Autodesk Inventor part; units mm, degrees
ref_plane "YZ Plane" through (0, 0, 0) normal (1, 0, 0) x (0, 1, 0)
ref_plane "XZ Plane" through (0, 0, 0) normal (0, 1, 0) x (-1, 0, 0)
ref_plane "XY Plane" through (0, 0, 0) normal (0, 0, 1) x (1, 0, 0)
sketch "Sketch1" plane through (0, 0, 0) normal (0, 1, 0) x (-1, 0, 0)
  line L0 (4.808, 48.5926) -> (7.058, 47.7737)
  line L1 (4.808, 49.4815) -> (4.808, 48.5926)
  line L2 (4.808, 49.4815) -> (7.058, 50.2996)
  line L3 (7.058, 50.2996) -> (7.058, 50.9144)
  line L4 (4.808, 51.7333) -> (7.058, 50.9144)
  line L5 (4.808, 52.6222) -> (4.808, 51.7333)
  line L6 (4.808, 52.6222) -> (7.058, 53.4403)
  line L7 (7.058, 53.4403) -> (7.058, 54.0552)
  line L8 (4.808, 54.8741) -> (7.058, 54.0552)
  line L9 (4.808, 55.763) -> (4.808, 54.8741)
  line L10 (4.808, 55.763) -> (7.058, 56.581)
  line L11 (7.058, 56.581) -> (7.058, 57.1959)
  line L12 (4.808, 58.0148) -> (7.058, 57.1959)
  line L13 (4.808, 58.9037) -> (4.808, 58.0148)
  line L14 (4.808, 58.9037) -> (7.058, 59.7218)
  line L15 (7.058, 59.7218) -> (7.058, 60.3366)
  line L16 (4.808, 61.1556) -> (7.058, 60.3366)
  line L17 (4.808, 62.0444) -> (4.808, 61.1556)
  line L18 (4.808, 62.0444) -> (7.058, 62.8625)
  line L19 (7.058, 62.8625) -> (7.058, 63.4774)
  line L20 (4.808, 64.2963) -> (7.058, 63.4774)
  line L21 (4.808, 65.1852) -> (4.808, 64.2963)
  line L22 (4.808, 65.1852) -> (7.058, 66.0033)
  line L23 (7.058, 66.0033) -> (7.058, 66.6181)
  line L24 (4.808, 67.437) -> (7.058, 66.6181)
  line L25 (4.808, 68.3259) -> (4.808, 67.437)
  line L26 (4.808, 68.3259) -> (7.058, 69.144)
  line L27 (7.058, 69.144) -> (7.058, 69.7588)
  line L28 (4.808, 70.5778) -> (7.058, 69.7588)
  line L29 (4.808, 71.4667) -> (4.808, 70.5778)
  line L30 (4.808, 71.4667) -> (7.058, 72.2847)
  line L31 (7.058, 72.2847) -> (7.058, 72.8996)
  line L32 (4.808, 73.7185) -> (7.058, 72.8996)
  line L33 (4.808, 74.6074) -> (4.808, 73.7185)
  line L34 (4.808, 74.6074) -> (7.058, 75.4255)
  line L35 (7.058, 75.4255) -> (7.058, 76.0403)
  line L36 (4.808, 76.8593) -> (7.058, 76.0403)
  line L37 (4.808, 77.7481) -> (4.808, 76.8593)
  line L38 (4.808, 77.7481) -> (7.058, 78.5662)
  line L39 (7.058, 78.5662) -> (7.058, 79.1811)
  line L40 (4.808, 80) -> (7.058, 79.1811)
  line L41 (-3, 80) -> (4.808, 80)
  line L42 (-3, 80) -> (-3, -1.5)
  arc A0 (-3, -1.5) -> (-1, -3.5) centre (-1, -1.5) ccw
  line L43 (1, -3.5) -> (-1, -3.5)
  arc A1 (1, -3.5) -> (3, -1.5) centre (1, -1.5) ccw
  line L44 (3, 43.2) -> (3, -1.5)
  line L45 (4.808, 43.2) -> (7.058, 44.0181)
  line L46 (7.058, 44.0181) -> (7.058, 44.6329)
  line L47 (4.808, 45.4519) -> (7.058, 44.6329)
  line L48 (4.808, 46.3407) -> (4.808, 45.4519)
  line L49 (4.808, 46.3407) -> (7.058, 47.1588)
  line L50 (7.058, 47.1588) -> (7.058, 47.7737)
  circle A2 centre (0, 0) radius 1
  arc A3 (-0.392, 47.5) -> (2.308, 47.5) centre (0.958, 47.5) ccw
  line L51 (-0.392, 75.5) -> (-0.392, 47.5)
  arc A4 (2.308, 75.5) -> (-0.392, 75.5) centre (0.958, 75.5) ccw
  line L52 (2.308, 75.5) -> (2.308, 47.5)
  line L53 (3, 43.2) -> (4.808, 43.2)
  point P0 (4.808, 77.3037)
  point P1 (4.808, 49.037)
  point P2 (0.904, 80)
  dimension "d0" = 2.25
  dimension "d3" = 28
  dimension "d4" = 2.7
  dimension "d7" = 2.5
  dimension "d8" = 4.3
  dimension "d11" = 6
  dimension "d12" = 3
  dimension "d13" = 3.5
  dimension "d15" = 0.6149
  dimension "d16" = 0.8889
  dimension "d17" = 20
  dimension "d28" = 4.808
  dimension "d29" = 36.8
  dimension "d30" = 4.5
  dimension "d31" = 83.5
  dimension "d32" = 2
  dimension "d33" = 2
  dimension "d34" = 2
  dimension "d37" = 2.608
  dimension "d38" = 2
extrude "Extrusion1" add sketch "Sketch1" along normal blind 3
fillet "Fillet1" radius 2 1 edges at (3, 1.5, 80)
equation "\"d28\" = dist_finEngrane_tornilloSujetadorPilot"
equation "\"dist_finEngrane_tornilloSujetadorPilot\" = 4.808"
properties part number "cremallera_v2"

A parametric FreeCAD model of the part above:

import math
import FreeCAD as App
import Part
import Sketcher

V = App.Vector
Q = App.Units.Quantity


def edges_at(feature, points):
    """Names of the edges that pass closest to the given points."""
    edges = feature.Shape.Edges
    near = lambda p: min(range(len(edges)), key=lambda i: edges[i].distToShape(Part.Vertex(*p))[0])
    return sorted({f"Edge{near(p) + 1}" for p in points})

doc = App.newDocument("Part")
params = doc.addObject("Spreadsheet::Sheet", "Params")
for row, (alias, value) in enumerate([
    ("sketch1_diameter", "2 mm"),
    ("sketch1_radius", "2 mm"),
    ("sketch1_width", "2 mm"),
    ("sketch1_height", "28 mm"),
    ("sketch1_radius2", "1.35 mm"),
    ("pad1_length", "3 mm"),
    ("fillet_radius", "2 mm"),
], start=1):
    params.set(f"A{row}", alias)
    params.set(f"B{row}", "=" + value)
    params.setAlias(f"B{row}", alias)

body = doc.addObject("PartDesign::Body", "Body")

# Sketch on XZ plane
sketch1 = doc.addObject("Sketcher::SketchObject", "Sketch")
body.addObject(sketch1)
sketch1.AttachmentSupport = (doc.XZ_Plane, [""])
sketch1.MapMode = "FlatFace"
sketch1.addGeometry(Part.LineSegment(V(-7.1, 47.8, 0), V(-4.8, 48.6, 0)), False)
sketch1.addGeometry(Part.LineSegment(V(-4.8, 48.6, 0), V(-4.8, 49.5, 0)), False)
sketch1.addGeometry(Part.LineSegment(V(-4.8, 49.5, 0), V(-7.1, 50.3, 0)), False)
sketch1.addGeometry(Part.LineSegment(V(-7.1, 50.3, 0), V(-7.1, 50.9, 0)), False)
sketch1.addGeometry(Part.LineSegment(V(-7.1, 50.9, 0), V(-4.8, 51.7, 0)), False)
sketch1.addGeometry(Part.LineSegment(V(-4.8, 51.7, 0), V(-4.8, 52.6, 0)), False)
sketch1.addGeometry(Part.LineSegment(V(-4.8, 52.6, 0), V(-7.1, 53.4, 0)), False)
sketch1.addGeometry(Part.LineSegment(V(-7.1, 53.4, 0), V(-7.1, 54.1, 0)), False)
sketch1.addGeometry(Part.LineSegment(V(-7.1, 54.1, 0), V(-4.8, 54.9, 0)), False)
sketch1.addGeometry(Part.LineSegment(V(-4.8, 54.9, 0), V(-4.8, 55.8, 0)), False)
sketch1.addGeometry(Part.LineSegment(V(-4.8, 55.8, 0), V(-7.1, 56.6, 0)), False)
sketch1.addGeometry(Part.LineSegment(V(-7.1, 56.6, 0), V(-7.1, 57.2, 0)), False)
sketch1.addGeometry(Part.LineSegment(V(-7.1, 57.2, 0), V(-4.8, 58, 0)), False)
sketch1.addGeometry(Part.LineSegment(V(-4.8, 58, 0), V(-4.8, 58.9, 0)), False)
sketch1.addGeometry(Part.LineSegment(V(-4.8, 58.9, 0), V(-7.1, 59.7, 0)), False)
sketch1.addGeometry(Part.LineSegment(V(-7.1, 59.7, 0), V(-7.1, 60.3, 0)), False)
sketch1.addGeometry(Part.LineSegment(V(-7.1, 60.3, 0), V(-4.8, 61.2, 0)), False)
sketch1.addGeometry(Part.LineSegment(V(-4.8, 61.2, 0), V(-4.8, 62, 0)), False)
sketch1.addGeometry(Part.LineSegment(V(-4.8, 62, 0), V(-7.1, 62.9, 0)), False)
sketch1.addGeometry(Part.LineSegment(V(-7.1, 62.9, 0), V(-7.1, 63.5, 0)), False)
sketch1.addGeometry(Part.LineSegment(V(-7.1, 63.5, 0), V(-4.8, 64.3, 0)), False)
sketch1.addGeometry(Part.LineSegment(V(-4.8, 64.3, 0), V(-4.8, 65.2, 0)), False)
sketch1.addGeometry(Part.LineSegment(V(-4.8, 65.2, 0), V(-7.1, 66, 0)), False)
sketch1.addGeometry(Part.LineSegment(V(-7.1, 66, 0), V(-7.1, 66.6, 0)), False)
sketch1.addGeometry(Part.LineSegment(V(-7.1, 66.6, 0), V(-4.8, 67.4, 0)), False)
sketch1.addGeometry(Part.LineSegment(V(-4.8, 67.4, 0), V(-4.8, 68.3, 0)), False)
sketch1.addGeometry(Part.LineSegment(V(-4.8, 68.3, 0), V(-7.1, 69.1, 0)), False)
sketch1.addGeometry(Part.LineSegment(V(-7.1, 69.1, 0), V(-7.1, 69.8, 0)), False)
sketch1.addGeometry(Part.LineSegment(V(-7.1, 69.8, 0), V(-4.8, 70.6, 0)), False)
sketch1.addGeometry(Part.LineSegment(V(-4.8, 70.6, 0), V(-4.8, 71.5, 0)), False)
sketch1.addGeometry(Part.LineSegment(V(-4.8, 71.5, 0), V(-7.1, 72.3, 0)), False)
sketch1.addGeometry(Part.LineSegment(V(-7.1, 72.3, 0), V(-7.1, 72.9, 0)), False)
sketch1.addGeometry(Part.LineSegment(V(-7.1, 72.9, 0), V(-4.8, 73.7, 0)), False)
sketch1.addGeometry(Part.LineSegment(V(-4.8, 73.7, 0), V(-4.8, 74.6, 0)), False)
sketch1.addGeometry(Part.LineSegment(V(-4.8, 74.6, 0), V(-7.1, 75.4, 0)), False)
sketch1.addGeometry(Part.LineSegment(V(-7.1, 75.4, 0), V(-7.1, 76, 0)), False)
sketch1.addGeometry(Part.LineSegment(V(-7.1, 76, 0), V(-4.8, 76.9, 0)), False)
sketch1.addGeometry(Part.LineSegment(V(-4.8, 76.9, 0), V(-4.8, 77.7, 0)), False)
sketch1.addGeometry(Part.LineSegment(V(-4.8, 77.7, 0), V(-7.1, 78.6, 0)), False)
sketch1.addGeometry(Part.LineSegment(V(-7.1, 78.6, 0), V(-7.1, 79.2, 0)), False)
sketch1.addGeometry(Part.LineSegment(V(-7.1, 79.2, 0), V(-4.8, 80, 0)), False)
sketch1.addGeometry(Part.LineSegment(V(-4.8, 80, 0), V(3, 80, 0)), False)
sketch1.addGeometry(Part.LineSegment(V(3, 80, 0), V(3, -1.5, 0)), False)
sketch1.addGeometry(Part.ArcOfCircle(Part.Circle(V(1, -1.5, 0), V(0, 0, 1), 2), math.radians(-90), math.radians(0)), False)
sketch1.addGeometry(Part.LineSegment(V(1, -3.5, 0), V(-1, -3.5, 0)), False)
sketch1.addGeometry(Part.ArcOfCircle(Part.Circle(V(-1, -1.5, 0), V(0, 0, 1), 2), math.radians(180), math.radians(270)), False)
sketch1.addGeometry(Part.LineSegment(V(-3, -1.5, 0), V(-3, 43.2, 0)), False)
sketch1.addGeometry(Part.LineSegment(V(-3, 43.2, 0), V(-4.8, 43.2, 0)), False)
sketch1.addGeometry(Part.LineSegment(V(-4.8, 43.2, 0), V(-7.1, 44, 0)), False)
sketch1.addGeometry(Part.LineSegment(V(-7.1, 44, 0), V(-7.1, 44.6, 0)), False)
sketch1.addGeometry(Part.LineSegment(V(-7.1, 44.6, 0), V(-4.8, 45.5, 0)), False)
sketch1.addGeometry(Part.LineSegment(V(-4.8, 45.5, 0), V(-4.8, 46.3, 0)), False)
sketch1.addGeometry(Part.LineSegment(V(-4.8, 46.3, 0), V(-7.1, 47.2, 0)), False)
sketch1.addGeometry(Part.LineSegment(V(-7.1, 47.2, 0), V(-7.1, 47.8, 0)), False)
sketch1.addGeometry(Part.Circle(V(0, 0, 0), V(0, 0, 1), 1), False)
sketch1.addGeometry(Part.ArcOfCircle(Part.Circle(V(-1, 47.5, 0), V(0, 0, 1), 1.4), math.radians(180), math.radians(360)), False)
sketch1.addGeometry(Part.LineSegment(V(0.4, 47.5, 0), V(0.4, 75.5, 0)), False)
sketch1.addGeometry(Part.ArcOfCircle(Part.Circle(V(-1, 75.5, 0), V(0, 0, 1), 1.3), math.radians(0), math.radians(180)), False)
sketch1.addGeometry(Part.LineSegment(V(-2.3, 75.5, 0), V(-2.3, 47.5, 0)), False)
sketch1.addConstraint(Sketcher.Constraint("Coincident", 0, 2, 1, 1))
sketch1.addConstraint(Sketcher.Constraint("Coincident", 1, 2, 2, 1))
sketch1.addConstraint(Sketcher.Constraint("Coincident", 2, 2, 3, 1))
sketch1.addConstraint(Sketcher.Constraint("Coincident", 3, 2, 4, 1))
sketch1.addConstraint(Sketcher.Constraint("Coincident", 4, 2, 5, 1))
sketch1.addConstraint(Sketcher.Constraint("Coincident", 5, 2, 6, 1))
sketch1.addConstraint(Sketcher.Constraint("Coincident", 6, 2, 7, 1))
sketch1.addConstraint(Sketcher.Constraint("Coincident", 7, 2, 8, 1))
sketch1.addConstraint(Sketcher.Constraint("Coincident", 8, 2, 9, 1))
sketch1.addConstraint(Sketcher.Constraint("Coincident", 9, 2, 10, 1))
sketch1.addConstraint(Sketcher.Constraint("Coincident", 10, 2, 11, 1))
sketch1.addConstraint(Sketcher.Constraint("Coincident", 11, 2, 12, 1))
sketch1.addConstraint(Sketcher.Constraint("Coincident", 12, 2, 13, 1))
sketch1.addConstraint(Sketcher.Constraint("Coincident", 13, 2, 14, 1))
sketch1.addConstraint(Sketcher.Constraint("Coincident", 14, 2, 15, 1))
sketch1.addConstraint(Sketcher.Constraint("Coincident", 15, 2, 16, 1))
sketch1.addConstraint(Sketcher.Constraint("Coincident", 16, 2, 17, 1))
sketch1.addConstraint(Sketcher.Constraint("Coincident", 17, 2, 18, 1))
sketch1.addConstraint(Sketcher.Constraint("Coincident", 18, 2, 19, 1))
sketch1.addConstraint(Sketcher.Constraint("Coincident", 19, 2, 20, 1))
sketch1.addConstraint(Sketcher.Constraint("Coincident", 20, 2, 21, 1))
sketch1.addConstraint(Sketcher.Constraint("Coincident", 21, 2, 22, 1))
sketch1.addConstraint(Sketcher.Constraint("Coincident", 22, 2, 23, 1))
sketch1.addConstraint(Sketcher.Constraint("Coincident", 23, 2, 24, 1))
sketch1.addConstraint(Sketcher.Constraint("Coincident", 24, 2, 25, 1))
sketch1.addConstraint(Sketcher.Constraint("Coincident", 25, 2, 26, 1))
sketch1.addConstraint(Sketcher.Constraint("Coincident", 26, 2, 27, 1))
sketch1.addConstraint(Sketcher.Constraint("Coincident", 27, 2, 28, 1))
sketch1.addConstraint(Sketcher.Constraint("Coincident", 28, 2, 29, 1))
sketch1.addConstraint(Sketcher.Constraint("Coincident", 29, 2, 30, 1))
sketch1.addConstraint(Sketcher.Constraint("Coincident", 30, 2, 31, 1))
sketch1.addConstraint(Sketcher.Constraint("Coincident", 31, 2, 32, 1))
sketch1.addConstraint(Sketcher.Constraint("Coincident", 32, 2, 33, 1))
sketch1.addConstraint(Sketcher.Constraint("Coincident", 33, 2, 34, 1))
sketch1.addConstraint(Sketcher.Constraint("Coincident", 34, 2, 35, 1))
sketch1.addConstraint(Sketcher.Constraint("Coincident", 35, 2, 36, 1))
sketch1.addConstraint(Sketcher.Constraint("Coincident", 36, 2, 37, 1))
sketch1.addConstraint(Sketcher.Constraint("Coincident", 37, 2, 38, 1))
sketch1.addConstraint(Sketcher.Constraint("Coincident", 38, 2, 39, 1))
sketch1.addConstraint(Sketcher.Constraint("Coincident", 39, 2, 40, 1))
sketch1.addConstraint(Sketcher.Constraint("Coincident", 40, 2, 41, 1))
sketch1.addConstraint(Sketcher.Constraint("Coincident", 41, 2, 42, 1))
sketch1.addConstraint(Sketcher.Constraint("Tangent", 42, 2, 43, 2))
sketch1.addConstraint(Sketcher.Constraint("Tangent", 43, 1, 44, 1))
sketch1.addConstraint(Sketcher.Constraint("Tangent", 44, 2, 45, 2))
sketch1.addConstraint(Sketcher.Constraint("Tangent", 45, 1, 46, 1))
sketch1.addConstraint(Sketcher.Constraint("Coincident", 46, 2, 47, 1))
sketch1.addConstraint(Sketcher.Constraint("Coincident", 47, 2, 48, 1))
sketch1.addConstraint(Sketcher.Constraint("Coincident", 48, 2, 49, 1))
sketch1.addConstraint(Sketcher.Constraint("Coincident", 49, 2, 50, 1))
sketch1.addConstraint(Sketcher.Constraint("Coincident", 50, 2, 51, 1))
sketch1.addConstraint(Sketcher.Constraint("Coincident", 51, 2, 52, 1))
sketch1.addConstraint(Sketcher.Constraint("Coincident", 52, 2, 53, 1))
sketch1.addConstraint(Sketcher.Constraint("Coincident", 53, 2, 0, 1))
sketch1.addConstraint(Sketcher.Constraint("Tangent", 55, 2, 56, 1))
sketch1.addConstraint(Sketcher.Constraint("Tangent", 56, 2, 57, 1))
sketch1.addConstraint(Sketcher.Constraint("Tangent", 57, 2, 58, 1))
sketch1.addConstraint(Sketcher.Constraint("Tangent", 58, 2, 55, 1))
sketch1.addConstraint(Sketcher.Constraint("Vertical", 1))
sketch1.addConstraint(Sketcher.Constraint("Vertical", 3))
sketch1.addConstraint(Sketcher.Constraint("Vertical", 5))
sketch1.addConstraint(Sketcher.Constraint("Vertical", 7))
sketch1.addConstraint(Sketcher.Constraint("Vertical", 9))
sketch1.addConstraint(Sketcher.Constraint("Vertical", 11))
sketch1.addConstraint(Sketcher.Constraint("Vertical", 13))
sketch1.addConstraint(Sketcher.Constraint("Vertical", 15))
sketch1.addConstraint(Sketcher.Constraint("Vertical", 17))
sketch1.addConstraint(Sketcher.Constraint("Vertical", 19))
sketch1.addConstraint(Sketcher.Constraint("Vertical", 21))
sketch1.addConstraint(Sketcher.Constraint("Vertical", 23))
sketch1.addConstraint(Sketcher.Constraint("Vertical", 25))
sketch1.addConstraint(Sketcher.Constraint("Vertical", 27))
sketch1.addConstraint(Sketcher.Constraint("Vertical", 29))
sketch1.addConstraint(Sketcher.Constraint("Vertical", 31))
sketch1.addConstraint(Sketcher.Constraint("Vertical", 33))
sketch1.addConstraint(Sketcher.Constraint("Vertical", 35))
sketch1.addConstraint(Sketcher.Constraint("Vertical", 37))
sketch1.addConstraint(Sketcher.Constraint("Vertical", 39))
sketch1.addConstraint(Sketcher.Constraint("Horizontal", 41))
sketch1.addConstraint(Sketcher.Constraint("Vertical", 42))
sketch1.addConstraint(Sketcher.Constraint("Horizontal", 44))
sketch1.addConstraint(Sketcher.Constraint("Vertical", 46))
sketch1.addConstraint(Sketcher.Constraint("Horizontal", 47))
sketch1.addConstraint(Sketcher.Constraint("Vertical", 49))
sketch1.addConstraint(Sketcher.Constraint("Vertical", 51))
sketch1.addConstraint(Sketcher.Constraint("Vertical", 53))
sketch1.addConstraint(Sketcher.Constraint("Vertical", 56))
sketch1.addConstraint(Sketcher.Constraint("Vertical", 58))
sketch1.addConstraint(Sketcher.Constraint("Coincident", 54, 3, -1, 1))
sketch1.addConstraint(Sketcher.Constraint("Equal", 43, 45))
sketch1.addConstraint(Sketcher.Constraint("Parallel", 0, 4))
sketch1.addConstraint(Sketcher.Constraint("Parallel", 2, 6))
sketch1.addConstraint(Sketcher.Constraint("Parallel", 4, 8))
sketch1.addConstraint(Sketcher.Constraint("Parallel", 6, 10))
sketch1.addConstraint(Sketcher.Constraint("Parallel", 8, 12))
sketch1.addConstraint(Sketcher.Constraint("Parallel", 10, 14))
sketch1.addConstraint(Sketcher.Constraint("Parallel", 12, 16))
sketch1.addConstraint(Sketcher.Constraint("Parallel", 14, 18))
sketch1.addConstraint(Sketcher.Constraint("Parallel", 16, 20))
sketch1.addConstraint(Sketcher.Constraint("Parallel", 18, 22))
sketch1.addConstraint(Sketcher.Constraint("Parallel", 20, 24))
sketch1.addConstraint(Sketcher.Constraint("Parallel", 22, 26))
sketch1.addConstraint(Sketcher.Constraint("Parallel", 24, 28))
sketch1.addConstraint(Sketcher.Constraint("Parallel", 26, 30))
sketch1.addConstraint(Sketcher.Constraint("Parallel", 28, 32))
sketch1.addConstraint(Sketcher.Constraint("Parallel", 30, 34))
sketch1.addConstraint(Sketcher.Constraint("Parallel", 32, 36))
sketch1.addConstraint(Sketcher.Constraint("Parallel", 34, 38))
sketch1.addConstraint(Sketcher.Constraint("Parallel", 36, 40))
sketch1.addConstraint(Sketcher.Constraint("Parallel", 38, 48))
sketch1.addConstraint(Sketcher.Constraint("Parallel", 40, 50))
sketch1.addConstraint(Sketcher.Constraint("Parallel", 48, 52))
sketch1.addConstraint(Sketcher.Constraint("Vertical", 1, 2, 4, 2))
sketch1.addConstraint(Sketcher.Constraint("Vertical", 3, 2, 6, 2))
sketch1.addConstraint(Sketcher.Constraint("Vertical", 5, 2, 8, 2))
sketch1.addConstraint(Sketcher.Constraint("Vertical", 7, 2, 10, 2))
sketch1.addConstraint(Sketcher.Constraint("Vertical", 9, 2, 12, 2))
sketch1.addConstraint(Sketcher.Constraint("Vertical", 11, 2, 14, 2))
sketch1.addConstraint(Sketcher.Constraint("Vertical", 13, 2, 16, 2))
sketch1.addConstraint(Sketcher.Constraint("Vertical", 15, 2, 18, 2))
sketch1.addConstraint(Sketcher.Constraint("Vertical", 17, 2, 20, 2))
sketch1.addConstraint(Sketcher.Constraint("Vertical", 19, 2, 22, 2))
sketch1.addConstraint(Sketcher.Constraint("Vertical", 21, 2, 24, 2))
sketch1.addConstraint(Sketcher.Constraint("Vertical", 23, 2, 26, 2))
sketch1.addConstraint(Sketcher.Constraint("Vertical", 25, 2, 28, 2))
sketch1.addConstraint(Sketcher.Constraint("Vertical", 27, 2, 30, 2))
sketch1.addConstraint(Sketcher.Constraint("Vertical", 29, 2, 32, 2))
sketch1.addConstraint(Sketcher.Constraint("Vertical", 31, 2, 34, 2))
sketch1.addConstraint(Sketcher.Constraint("Vertical", 33, 2, 36, 2))
sketch1.addConstraint(Sketcher.Constraint("Vertical", 35, 2, 38, 2))
sketch1.addConstraint(Sketcher.Constraint("Vertical", 37, 2, 40, 2))
sketch1.addConstraint(Sketcher.Constraint("Vertical", 40, 2, 47, 2))
sketch1.addConstraint(Sketcher.Constraint("Vertical", 39, 2, 48, 2))
sketch1.addConstraint(Sketcher.Constraint("Vertical", 47, 2, 50, 2))
sketch1.addConstraint(Sketcher.Constraint("Vertical", 49, 2, 52, 2))
sketch1.addConstraint(Sketcher.Constraint("Equal", 1, 5))
sketch1.addConstraint(Sketcher.Constraint("Equal", 3, 7))
sketch1.addConstraint(Sketcher.Constraint("Equal", 5, 9))
sketch1.addConstraint(Sketcher.Constraint("Equal", 7, 11))
sketch1.addConstraint(Sketcher.Constraint("Equal", 9, 13))
sketch1.addConstraint(Sketcher.Constraint("Equal", 11, 15))
sketch1.addConstraint(Sketcher.Constraint("Equal", 13, 17))
sketch1.addConstraint(Sketcher.Constraint("Equal", 15, 19))
sketch1.addConstraint(Sketcher.Constraint("Equal", 17, 21))
sketch1.addConstraint(Sketcher.Constraint("Equal", 19, 23))
sketch1.addConstraint(Sketcher.Constraint("Equal", 21, 25))
sketch1.addConstraint(Sketcher.Constraint("Equal", 23, 27))
sketch1.addConstraint(Sketcher.Constraint("Equal", 25, 29))
sketch1.addConstraint(Sketcher.Constraint("Equal", 27, 31))
sketch1.addConstraint(Sketcher.Constraint("Equal", 29, 33))
sketch1.addConstraint(Sketcher.Constraint("Equal", 31, 35))
sketch1.addConstraint(Sketcher.Constraint("Equal", 33, 37))
sketch1.addConstraint(Sketcher.Constraint("Equal", 35, 39))
sketch1.addConstraint(Sketcher.Constraint("Equal", 39, 49))
sketch1.addConstraint(Sketcher.Constraint("Equal", 37, 51))
sketch1.addConstraint(Sketcher.Constraint("Equal", 49, 53))
sketch1.addConstraint(Sketcher.Constraint("Diameter", 54, Q("2 mm")))
sketch1.addConstraint(Sketcher.Constraint("Radius", 43, Q("2 mm")))
sketch1.addConstraint(Sketcher.Constraint("DistanceX", 44, 2, 44, 1, Q("2 mm")))
sketch1.addConstraint(Sketcher.Constraint("DistanceY", 56, 1, 56, 2, Q("28 mm")))
sketch1.addConstraint(Sketcher.Constraint("Radius", 55, Q("1.35 mm")))
sketch1.addConstraint(Sketcher.Constraint("DistanceX", -1, 1, 41, 2, Q("3 mm")))
sketch1.addConstraint(Sketcher.Constraint("DistanceY", 43, 1, -1, 1, Q("3.5 mm")))
sketch1.addConstraint(Sketcher.Constraint("DistanceY", 1, 1, 1, 2, Q("0.889 mm")))
sketch1.addConstraint(Sketcher.Constraint("DistanceY", 7, 1, 7, 2, Q("0.615 mm")))
sketch1.addConstraint(Sketcher.Constraint("Angle", 0, Q("19.9993 deg")))
sketch1.addConstraint(Sketcher.Constraint("DistanceY", 42, 2, 42, 1, Q("81.5 mm")))
sketch1.addConstraint(Sketcher.Constraint("DistanceY", 46, 1, 46, 2, Q("44.7 mm")))
sketch1.addConstraint(Sketcher.Constraint("DistanceX", 0, 2, -1, 1, Q("4.808 mm")))
sketch1.addConstraint(Sketcher.Constraint("DistanceY", -1, 1, 55, 3, Q("47.5 mm")))
sketch1.addConstraint(Sketcher.Constraint("Angle", 10, Q("160.021 deg")))
sketch1.addConstraint(Sketcher.Constraint("DistanceX", 55, 3, -1, 1, Q("0.958 mm")))
sketch1.setExpression("Constraints[156]", "Params.sketch1_diameter")
sketch1.setExpression("Constraints[157]", "Params.sketch1_radius")
sketch1.setExpression("Constraints[158]", "Params.sketch1_width")
sketch1.setExpression("Constraints[159]", "Params.sketch1_height")
sketch1.setExpression("Constraints[160]", "Params.sketch1_radius2")
pad1 = doc.addObject("PartDesign::Pad", "Pad")
body.addObject(pad1)
pad1.Profile = sketch1
pad1.setExpression("Length", "Params.pad1_length")
pad1.Reversed = True
doc.recompute()

fillet = doc.addObject("PartDesign::Fillet", "Fillet")
body.addObject(fillet)
fillet.Base = (pad1, edges_at(pad1, [(3, 1.5, 80)]))
fillet.setExpression("Radius", "Params.fillet_radius")

doc.recompute()
